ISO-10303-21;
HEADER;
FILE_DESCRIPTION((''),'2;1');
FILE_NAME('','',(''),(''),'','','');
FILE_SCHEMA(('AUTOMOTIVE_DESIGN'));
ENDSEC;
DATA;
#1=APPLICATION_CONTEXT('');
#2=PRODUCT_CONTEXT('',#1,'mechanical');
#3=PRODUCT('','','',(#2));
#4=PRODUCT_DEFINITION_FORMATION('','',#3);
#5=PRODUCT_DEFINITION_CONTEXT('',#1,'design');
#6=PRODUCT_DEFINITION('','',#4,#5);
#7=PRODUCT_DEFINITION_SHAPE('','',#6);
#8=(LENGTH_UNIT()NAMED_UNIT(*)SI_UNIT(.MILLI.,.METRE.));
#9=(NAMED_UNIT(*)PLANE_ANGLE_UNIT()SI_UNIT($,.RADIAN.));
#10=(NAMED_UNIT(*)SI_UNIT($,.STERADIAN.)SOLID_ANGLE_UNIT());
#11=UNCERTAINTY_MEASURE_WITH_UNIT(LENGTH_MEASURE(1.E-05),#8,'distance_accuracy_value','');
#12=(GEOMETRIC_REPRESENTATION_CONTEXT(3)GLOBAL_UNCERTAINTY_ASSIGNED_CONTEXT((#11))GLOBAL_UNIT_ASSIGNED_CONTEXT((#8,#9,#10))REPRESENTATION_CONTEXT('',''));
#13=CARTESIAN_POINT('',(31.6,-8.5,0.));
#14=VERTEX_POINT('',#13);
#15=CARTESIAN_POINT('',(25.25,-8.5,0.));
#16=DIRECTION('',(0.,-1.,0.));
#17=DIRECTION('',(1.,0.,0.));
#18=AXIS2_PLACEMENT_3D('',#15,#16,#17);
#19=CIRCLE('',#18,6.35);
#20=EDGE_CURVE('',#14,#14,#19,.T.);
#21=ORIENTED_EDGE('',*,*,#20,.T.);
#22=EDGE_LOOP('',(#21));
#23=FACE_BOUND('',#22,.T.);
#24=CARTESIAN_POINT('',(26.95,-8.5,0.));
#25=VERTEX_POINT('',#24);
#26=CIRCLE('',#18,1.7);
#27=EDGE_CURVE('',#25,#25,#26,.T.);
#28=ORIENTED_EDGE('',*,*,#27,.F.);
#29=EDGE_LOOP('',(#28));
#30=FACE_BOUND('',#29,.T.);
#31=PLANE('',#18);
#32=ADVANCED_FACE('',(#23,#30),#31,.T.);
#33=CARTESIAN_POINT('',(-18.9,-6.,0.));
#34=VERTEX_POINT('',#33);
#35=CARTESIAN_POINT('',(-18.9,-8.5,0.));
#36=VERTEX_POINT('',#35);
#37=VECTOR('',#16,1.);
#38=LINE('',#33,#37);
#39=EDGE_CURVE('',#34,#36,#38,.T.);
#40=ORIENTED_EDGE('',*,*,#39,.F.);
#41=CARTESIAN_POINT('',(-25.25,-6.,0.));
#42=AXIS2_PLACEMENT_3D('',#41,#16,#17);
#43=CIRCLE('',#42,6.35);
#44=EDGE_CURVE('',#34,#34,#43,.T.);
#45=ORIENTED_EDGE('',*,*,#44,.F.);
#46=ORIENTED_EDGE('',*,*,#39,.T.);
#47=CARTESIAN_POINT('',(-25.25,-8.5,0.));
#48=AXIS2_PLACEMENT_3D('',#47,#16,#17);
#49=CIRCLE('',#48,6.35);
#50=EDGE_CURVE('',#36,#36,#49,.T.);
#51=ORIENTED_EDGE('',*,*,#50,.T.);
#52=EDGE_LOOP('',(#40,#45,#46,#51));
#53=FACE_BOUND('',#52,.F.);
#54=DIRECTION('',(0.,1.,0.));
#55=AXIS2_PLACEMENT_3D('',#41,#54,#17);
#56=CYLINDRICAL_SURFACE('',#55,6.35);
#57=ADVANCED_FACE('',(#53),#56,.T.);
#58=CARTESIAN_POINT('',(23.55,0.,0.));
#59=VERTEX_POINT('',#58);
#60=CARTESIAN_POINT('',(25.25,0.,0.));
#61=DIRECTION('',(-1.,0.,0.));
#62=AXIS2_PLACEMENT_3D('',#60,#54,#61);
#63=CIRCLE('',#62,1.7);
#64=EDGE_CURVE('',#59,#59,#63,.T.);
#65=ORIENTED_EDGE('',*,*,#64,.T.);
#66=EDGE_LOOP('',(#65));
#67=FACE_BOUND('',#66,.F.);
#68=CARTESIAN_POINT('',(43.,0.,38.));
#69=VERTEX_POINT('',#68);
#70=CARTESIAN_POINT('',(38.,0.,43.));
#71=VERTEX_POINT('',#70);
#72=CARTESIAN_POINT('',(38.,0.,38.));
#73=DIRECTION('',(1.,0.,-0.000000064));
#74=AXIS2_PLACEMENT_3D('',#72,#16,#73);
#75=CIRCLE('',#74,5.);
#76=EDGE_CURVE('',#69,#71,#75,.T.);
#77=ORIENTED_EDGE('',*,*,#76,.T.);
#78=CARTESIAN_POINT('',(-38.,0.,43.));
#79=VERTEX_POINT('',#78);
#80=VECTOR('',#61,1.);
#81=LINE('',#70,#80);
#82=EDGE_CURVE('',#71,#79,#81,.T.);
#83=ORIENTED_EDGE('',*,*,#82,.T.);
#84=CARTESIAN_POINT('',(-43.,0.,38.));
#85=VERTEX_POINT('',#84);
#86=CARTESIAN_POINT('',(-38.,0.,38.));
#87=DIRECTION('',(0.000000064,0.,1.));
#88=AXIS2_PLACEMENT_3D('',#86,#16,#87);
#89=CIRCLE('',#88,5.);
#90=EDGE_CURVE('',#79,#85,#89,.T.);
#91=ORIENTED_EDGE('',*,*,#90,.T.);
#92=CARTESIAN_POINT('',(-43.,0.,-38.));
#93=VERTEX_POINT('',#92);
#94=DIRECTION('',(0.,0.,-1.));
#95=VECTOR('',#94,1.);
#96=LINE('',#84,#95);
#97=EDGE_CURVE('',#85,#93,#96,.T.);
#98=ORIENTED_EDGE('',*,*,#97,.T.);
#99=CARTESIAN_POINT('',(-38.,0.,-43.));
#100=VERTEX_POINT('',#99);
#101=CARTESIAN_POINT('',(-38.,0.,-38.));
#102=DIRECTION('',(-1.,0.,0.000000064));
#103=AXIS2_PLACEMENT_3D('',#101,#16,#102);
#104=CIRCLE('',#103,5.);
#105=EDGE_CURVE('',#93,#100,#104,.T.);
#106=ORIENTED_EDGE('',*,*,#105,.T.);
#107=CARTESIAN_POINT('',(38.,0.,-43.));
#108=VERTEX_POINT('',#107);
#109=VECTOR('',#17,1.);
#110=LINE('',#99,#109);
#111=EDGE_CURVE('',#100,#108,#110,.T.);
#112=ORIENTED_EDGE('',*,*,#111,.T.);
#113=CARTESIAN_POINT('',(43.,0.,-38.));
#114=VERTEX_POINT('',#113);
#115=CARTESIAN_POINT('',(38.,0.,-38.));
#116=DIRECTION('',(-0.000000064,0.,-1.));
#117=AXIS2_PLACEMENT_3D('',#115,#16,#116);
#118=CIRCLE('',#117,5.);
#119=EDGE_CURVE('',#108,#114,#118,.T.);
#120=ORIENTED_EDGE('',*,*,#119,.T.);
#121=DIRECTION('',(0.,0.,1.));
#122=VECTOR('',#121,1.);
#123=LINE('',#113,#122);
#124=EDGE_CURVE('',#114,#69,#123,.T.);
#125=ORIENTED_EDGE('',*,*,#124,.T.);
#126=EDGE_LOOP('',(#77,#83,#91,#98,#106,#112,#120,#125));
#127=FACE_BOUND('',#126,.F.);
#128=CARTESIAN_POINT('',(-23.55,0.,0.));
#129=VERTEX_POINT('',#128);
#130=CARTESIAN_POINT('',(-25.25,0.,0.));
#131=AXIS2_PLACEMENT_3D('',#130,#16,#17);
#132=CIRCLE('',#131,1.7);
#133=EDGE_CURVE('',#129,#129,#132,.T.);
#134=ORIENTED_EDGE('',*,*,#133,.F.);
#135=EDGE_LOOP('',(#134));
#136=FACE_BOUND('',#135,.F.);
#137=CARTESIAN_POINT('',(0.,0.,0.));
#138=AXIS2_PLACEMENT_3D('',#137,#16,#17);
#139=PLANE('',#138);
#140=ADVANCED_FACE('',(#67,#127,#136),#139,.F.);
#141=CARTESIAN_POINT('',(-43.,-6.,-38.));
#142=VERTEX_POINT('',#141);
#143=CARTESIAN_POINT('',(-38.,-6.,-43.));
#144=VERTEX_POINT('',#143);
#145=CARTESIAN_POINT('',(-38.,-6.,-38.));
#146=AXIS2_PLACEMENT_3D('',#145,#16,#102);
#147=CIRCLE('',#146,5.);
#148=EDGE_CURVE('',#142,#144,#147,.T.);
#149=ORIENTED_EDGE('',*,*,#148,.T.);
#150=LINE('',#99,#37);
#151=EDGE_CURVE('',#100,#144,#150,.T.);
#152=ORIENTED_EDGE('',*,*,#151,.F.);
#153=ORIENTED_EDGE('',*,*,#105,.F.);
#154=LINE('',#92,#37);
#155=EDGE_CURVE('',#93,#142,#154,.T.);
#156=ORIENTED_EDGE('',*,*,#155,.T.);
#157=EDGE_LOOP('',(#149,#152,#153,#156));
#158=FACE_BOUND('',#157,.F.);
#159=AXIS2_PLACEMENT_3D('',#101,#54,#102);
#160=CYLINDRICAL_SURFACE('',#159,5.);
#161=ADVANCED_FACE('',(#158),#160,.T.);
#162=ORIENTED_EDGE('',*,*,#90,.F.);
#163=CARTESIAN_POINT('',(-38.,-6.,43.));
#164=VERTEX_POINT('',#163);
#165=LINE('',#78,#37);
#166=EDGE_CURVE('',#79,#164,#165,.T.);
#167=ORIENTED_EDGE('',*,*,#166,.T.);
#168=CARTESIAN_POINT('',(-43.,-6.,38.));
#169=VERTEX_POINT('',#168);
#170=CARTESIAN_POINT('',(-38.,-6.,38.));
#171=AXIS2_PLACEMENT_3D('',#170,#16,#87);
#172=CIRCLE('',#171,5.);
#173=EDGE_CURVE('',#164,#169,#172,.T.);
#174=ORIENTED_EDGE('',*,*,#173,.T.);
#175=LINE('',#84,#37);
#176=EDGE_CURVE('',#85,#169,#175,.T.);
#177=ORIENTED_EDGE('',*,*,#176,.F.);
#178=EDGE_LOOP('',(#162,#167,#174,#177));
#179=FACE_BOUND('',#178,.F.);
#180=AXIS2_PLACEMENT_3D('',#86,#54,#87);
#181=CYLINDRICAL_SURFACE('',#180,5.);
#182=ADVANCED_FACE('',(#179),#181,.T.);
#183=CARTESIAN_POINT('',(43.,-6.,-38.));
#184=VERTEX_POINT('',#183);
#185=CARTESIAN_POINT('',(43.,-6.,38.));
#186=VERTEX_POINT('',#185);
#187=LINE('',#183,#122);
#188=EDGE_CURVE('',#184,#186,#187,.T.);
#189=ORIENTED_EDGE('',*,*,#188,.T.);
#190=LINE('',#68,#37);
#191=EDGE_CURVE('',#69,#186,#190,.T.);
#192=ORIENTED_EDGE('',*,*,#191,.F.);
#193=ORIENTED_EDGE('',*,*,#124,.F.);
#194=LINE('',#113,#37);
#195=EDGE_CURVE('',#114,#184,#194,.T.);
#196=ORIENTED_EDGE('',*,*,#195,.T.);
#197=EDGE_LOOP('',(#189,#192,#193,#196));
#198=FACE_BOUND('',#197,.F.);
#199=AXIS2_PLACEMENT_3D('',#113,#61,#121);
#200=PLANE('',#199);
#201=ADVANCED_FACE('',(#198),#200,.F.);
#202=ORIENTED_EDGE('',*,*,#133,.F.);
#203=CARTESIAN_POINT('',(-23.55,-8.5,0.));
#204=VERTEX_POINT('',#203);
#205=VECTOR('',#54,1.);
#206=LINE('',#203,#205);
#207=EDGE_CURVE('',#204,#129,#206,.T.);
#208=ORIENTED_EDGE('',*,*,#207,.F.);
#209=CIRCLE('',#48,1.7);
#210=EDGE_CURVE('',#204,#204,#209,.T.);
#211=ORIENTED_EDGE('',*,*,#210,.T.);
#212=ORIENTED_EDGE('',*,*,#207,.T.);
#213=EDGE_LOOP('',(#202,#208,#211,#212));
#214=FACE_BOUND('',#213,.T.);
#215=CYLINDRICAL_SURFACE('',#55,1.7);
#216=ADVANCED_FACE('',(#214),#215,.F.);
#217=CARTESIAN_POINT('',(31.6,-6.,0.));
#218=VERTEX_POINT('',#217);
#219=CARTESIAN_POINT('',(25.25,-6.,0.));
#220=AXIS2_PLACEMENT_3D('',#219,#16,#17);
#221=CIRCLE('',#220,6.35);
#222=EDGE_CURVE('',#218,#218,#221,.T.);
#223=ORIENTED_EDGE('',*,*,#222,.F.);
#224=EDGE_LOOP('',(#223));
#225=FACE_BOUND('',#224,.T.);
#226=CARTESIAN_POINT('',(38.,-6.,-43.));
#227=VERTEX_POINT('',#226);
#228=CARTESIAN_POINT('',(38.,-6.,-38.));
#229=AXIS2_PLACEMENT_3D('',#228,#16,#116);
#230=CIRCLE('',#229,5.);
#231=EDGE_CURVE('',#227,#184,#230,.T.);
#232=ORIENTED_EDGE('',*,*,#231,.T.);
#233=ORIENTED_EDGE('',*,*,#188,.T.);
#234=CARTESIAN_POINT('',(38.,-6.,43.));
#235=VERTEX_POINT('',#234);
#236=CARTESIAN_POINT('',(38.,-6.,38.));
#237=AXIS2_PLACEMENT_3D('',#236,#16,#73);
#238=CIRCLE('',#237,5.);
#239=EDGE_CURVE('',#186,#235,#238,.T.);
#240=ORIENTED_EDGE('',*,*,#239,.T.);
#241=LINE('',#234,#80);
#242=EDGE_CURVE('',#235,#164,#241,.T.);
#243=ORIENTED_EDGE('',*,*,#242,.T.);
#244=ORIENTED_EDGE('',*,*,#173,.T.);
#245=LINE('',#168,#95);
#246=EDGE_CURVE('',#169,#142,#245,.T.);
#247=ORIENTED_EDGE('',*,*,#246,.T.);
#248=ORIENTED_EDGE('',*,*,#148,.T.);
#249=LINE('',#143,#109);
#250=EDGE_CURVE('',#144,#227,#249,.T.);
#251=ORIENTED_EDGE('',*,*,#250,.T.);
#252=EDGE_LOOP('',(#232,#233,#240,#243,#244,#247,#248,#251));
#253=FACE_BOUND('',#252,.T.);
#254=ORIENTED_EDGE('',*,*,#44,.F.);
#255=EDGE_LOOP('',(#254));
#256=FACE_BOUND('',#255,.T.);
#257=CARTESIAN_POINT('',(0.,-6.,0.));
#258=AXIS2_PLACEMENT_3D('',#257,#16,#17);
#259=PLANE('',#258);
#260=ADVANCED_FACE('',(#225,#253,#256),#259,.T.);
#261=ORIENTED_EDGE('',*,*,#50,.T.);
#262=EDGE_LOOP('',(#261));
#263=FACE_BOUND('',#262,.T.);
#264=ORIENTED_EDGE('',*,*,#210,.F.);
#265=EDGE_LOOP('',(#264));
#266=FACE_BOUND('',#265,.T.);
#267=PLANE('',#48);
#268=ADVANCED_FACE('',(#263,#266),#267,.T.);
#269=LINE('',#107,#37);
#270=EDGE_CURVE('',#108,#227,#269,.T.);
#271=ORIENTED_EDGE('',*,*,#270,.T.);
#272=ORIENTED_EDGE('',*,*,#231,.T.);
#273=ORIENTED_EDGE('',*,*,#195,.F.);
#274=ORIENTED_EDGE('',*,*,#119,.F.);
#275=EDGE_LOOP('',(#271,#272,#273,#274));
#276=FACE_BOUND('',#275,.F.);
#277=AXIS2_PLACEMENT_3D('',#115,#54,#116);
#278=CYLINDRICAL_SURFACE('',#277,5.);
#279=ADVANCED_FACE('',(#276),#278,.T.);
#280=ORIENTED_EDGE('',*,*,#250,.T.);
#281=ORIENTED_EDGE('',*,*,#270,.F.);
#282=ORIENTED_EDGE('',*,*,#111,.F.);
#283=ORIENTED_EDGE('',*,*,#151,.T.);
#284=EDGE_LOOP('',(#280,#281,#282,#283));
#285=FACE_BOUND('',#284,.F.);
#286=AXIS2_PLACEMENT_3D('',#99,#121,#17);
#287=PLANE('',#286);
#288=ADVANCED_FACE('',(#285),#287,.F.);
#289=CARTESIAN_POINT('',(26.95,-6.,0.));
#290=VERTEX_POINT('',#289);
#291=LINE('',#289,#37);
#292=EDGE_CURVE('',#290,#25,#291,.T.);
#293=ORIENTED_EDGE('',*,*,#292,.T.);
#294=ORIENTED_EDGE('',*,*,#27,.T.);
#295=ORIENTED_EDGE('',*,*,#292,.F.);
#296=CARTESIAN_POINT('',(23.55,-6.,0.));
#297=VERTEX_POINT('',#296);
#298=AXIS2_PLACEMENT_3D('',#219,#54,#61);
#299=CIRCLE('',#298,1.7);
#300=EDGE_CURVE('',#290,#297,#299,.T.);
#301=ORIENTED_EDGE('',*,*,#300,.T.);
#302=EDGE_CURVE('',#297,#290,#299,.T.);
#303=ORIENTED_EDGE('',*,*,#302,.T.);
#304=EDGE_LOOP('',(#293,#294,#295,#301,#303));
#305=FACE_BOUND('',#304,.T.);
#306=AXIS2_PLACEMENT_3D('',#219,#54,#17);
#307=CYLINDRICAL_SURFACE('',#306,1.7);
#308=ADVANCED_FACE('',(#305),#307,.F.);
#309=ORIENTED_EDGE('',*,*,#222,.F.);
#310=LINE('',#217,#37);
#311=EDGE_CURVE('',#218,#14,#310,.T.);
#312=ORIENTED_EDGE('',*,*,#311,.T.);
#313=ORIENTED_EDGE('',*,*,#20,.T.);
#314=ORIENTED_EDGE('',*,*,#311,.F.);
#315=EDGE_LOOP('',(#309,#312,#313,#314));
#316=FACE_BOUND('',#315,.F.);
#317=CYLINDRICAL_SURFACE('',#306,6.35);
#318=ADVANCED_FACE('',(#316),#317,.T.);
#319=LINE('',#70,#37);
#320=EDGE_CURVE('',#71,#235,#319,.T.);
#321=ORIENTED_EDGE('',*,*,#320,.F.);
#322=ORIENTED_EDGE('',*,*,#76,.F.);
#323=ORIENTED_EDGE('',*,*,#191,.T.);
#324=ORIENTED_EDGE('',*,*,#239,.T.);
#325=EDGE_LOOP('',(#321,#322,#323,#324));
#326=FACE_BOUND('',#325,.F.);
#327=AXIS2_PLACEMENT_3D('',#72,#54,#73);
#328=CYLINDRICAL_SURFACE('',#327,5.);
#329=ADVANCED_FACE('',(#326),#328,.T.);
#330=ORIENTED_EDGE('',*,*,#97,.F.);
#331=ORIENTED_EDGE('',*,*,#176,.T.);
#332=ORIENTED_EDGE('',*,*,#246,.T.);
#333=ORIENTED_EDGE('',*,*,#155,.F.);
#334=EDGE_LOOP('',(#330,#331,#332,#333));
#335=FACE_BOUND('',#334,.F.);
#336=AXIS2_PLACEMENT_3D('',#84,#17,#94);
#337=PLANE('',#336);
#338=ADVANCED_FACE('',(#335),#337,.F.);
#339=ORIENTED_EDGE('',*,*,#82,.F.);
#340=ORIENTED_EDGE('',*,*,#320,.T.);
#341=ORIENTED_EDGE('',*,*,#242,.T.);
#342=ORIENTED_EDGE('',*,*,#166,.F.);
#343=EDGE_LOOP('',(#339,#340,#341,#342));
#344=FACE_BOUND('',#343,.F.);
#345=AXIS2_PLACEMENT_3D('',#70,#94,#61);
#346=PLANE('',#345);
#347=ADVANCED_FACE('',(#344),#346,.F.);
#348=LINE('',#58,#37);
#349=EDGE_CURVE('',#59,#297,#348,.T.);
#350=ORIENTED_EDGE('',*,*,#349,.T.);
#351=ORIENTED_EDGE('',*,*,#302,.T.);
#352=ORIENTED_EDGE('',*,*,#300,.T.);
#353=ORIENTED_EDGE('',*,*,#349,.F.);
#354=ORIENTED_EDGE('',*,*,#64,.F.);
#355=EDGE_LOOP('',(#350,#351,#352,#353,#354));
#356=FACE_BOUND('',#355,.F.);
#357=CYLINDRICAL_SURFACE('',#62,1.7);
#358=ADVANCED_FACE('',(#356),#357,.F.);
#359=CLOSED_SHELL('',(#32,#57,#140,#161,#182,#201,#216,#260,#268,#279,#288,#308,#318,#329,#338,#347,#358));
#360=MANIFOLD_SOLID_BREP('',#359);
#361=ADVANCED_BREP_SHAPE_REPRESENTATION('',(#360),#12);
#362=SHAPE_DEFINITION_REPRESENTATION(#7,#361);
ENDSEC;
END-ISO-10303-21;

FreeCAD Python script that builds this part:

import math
import FreeCAD as App
import Part
import Sketcher

V = App.Vector
Q = App.Units.Quantity

doc = App.newDocument("Part")
body = doc.addObject("PartDesign::Body", "Body")

sketch1 = body.newObject("Sketcher::SketchObject", "Sketch")
sketch1.AttachmentSupport = (doc.getObject("XZ_Plane"), [""])
sketch1.MapMode = "FlatFace"
sketch1.addGeometry([
    Part.LineSegment(V(38, 43, 0), V(-38, 43, 0)),
    Part.ArcOfCircle(Part.Circle(V(-38, 38, 0), V(0, 0, 1), 5), math.radians(90), math.radians(180)),
    Part.LineSegment(V(-43, 38, 0), V(-43, -38, 0)),
    Part.ArcOfCircle(Part.Circle(V(-38, -38, 0), V(0, 0, 1), 5), math.radians(180), math.radians(270)),
    Part.LineSegment(V(-38, -43, 0), V(38, -43, 0)),
    Part.ArcOfCircle(Part.Circle(V(38, -38, 0), V(0, 0, 1), 5), math.radians(-90), math.radians(0)),
    Part.LineSegment(V(43, -38, 0), V(43, 38, 0)),
    Part.ArcOfCircle(Part.Circle(V(38, 38, 0), V(0, 0, 1), 5), math.radians(0), math.radians(90)),
    Part.Circle(V(25.2, 0, 0), V(0, 0, 1), 1.7),
    Part.Circle(V(-25.2, 0, 0), V(0, 0, 1), 1.7),
], False)
sketch1.addConstraint([
    Sketcher.Constraint("Tangent", 0, 2, 1, 1),
    Sketcher.Constraint("Tangent", 1, 2, 2, 1),
    Sketcher.Constraint("Tangent", 2, 2, 3, 1),
    Sketcher.Constraint("Tangent", 3, 2, 4, 1),
    Sketcher.Constraint("Tangent", 4, 2, 5, 1),
    Sketcher.Constraint("Tangent", 5, 2, 6, 1),
    Sketcher.Constraint("Tangent", 6, 2, 7, 1),
    Sketcher.Constraint("Tangent", 7, 2, 0, 1),
    Sketcher.Constraint("Horizontal", 0),
    Sketcher.Constraint("Vertical", 2),
    Sketcher.Constraint("Horizontal", 4),
    Sketcher.Constraint("Vertical", 6),
    Sketcher.Constraint("Equal", 1, 3),
    Sketcher.Constraint("Equal", 3, 5),
    Sketcher.Constraint("Equal", 5, 7),
    Sketcher.Constraint("Equal", 8, 9),
    Sketcher.Constraint("Symmetric", 1, 3, 5, 3, -1, 1),
    Sketcher.Constraint("Symmetric", 8, 3, 9, 3, -1, 1),
    Sketcher.Constraint("PointOnObject", 8, 3, -1),
    Sketcher.Constraint("Equal", 4, 2),
    Sketcher.Constraint("Radius", 1, Q("5 mm")),
    Sketcher.Constraint("Diameter", 8, Q("3.4 mm")),
    Sketcher.Constraint("DistanceX", 0, 2, 0, 1, Q("76 mm")),
    Sketcher.Constraint("DistanceX", 9, 3, 8, 3, Q("50.5 mm")),
])
pad1 = body.newObject("PartDesign::Pad", "Pad")
pad1.Profile = sketch1
pad1.Length = 6

sketch2 = body.newObject("Sketcher::SketchObject", "Sketch001")
sketch2.AttachmentSupport = (doc.getObject("XZ_Plane"), [""])
sketch2.MapMode = "FlatFace"
sketch2.AttachmentOffset = App.Placement(V(0, 0, 6), App.Rotation())
sketch2.addGeometry([
    Part.Circle(V(-25.2, 0, 0), V(0, 0, 1), 6.3),
    Part.Circle(V(-25.2, 0, 0), V(0, 0, 1), 1.7),
    Part.Circle(V(25.2, 0, 0), V(0, 0, 1), 6.3),
    Part.Circle(V(25.2, 0, 0), V(0, 0, 1), 1.7),
], False)
sketch2.addConstraint([
    Sketcher.Constraint("Coincident", 1, 3, 0, 3),
    Sketcher.Constraint("Coincident", 3, 3, 2, 3),
    Sketcher.Constraint("Equal", 0, 2),
    Sketcher.Constraint("Equal", 1, 3),
    Sketcher.Constraint("Symmetric", 0, 3, 2, 3, -1, 1),
    Sketcher.Constraint("PointOnObject", 0, 3, -1),
    Sketcher.Constraint("Diameter", 0, Q("12.7 mm")),
    Sketcher.Constraint("Diameter", 1, Q("3.4 mm")),
    Sketcher.Constraint("DistanceX", 0, 3, 2, 3, Q("50.5 mm")),
])
pad2 = body.newObject("PartDesign::Pad", "Pad001")
pad2.Profile = sketch2
pad2.Length = 2.5

doc.recompute()
